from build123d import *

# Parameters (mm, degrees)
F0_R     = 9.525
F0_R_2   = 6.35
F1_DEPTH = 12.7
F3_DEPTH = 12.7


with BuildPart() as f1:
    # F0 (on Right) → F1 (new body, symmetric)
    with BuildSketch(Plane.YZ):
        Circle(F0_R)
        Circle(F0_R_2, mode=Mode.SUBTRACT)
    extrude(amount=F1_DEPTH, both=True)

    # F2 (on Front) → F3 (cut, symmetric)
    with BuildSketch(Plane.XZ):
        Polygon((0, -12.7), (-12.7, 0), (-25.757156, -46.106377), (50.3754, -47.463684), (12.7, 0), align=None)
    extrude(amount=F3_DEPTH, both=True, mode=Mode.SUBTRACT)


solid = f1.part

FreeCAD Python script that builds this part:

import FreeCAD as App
import Part
import Sketcher
from FreeCAD import Vector
Q = App.Units.Quantity


def add_polygon(sketch, points):
    """Adds a closed chain of lines whose ends are joined by coincident constraints."""
    first, n = sketch.GeometryCount, len(points)
    for a, b in zip(points, points[1:] + points[:1]):
        sketch.addGeometry(Part.LineSegment(App.Vector(*a, 0), App.Vector(*b, 0)), False)
    for i in range(n):
        sketch.addConstraint(Sketcher.Constraint("Coincident", first + i, 2, first + (i + 1) % n, 1))

doc = App.newDocument("Part")
body = doc.addObject("PartDesign::Body", "Body")

# Sketch on YZ plane
sketch1 = doc.addObject("Sketcher::SketchObject", "Sketch")
body.addObject(sketch1)
sketch1.AttachmentSupport = (doc.YZ_Plane, [""])
sketch1.MapMode = "FlatFace"
sketch1.addGeometry(Part.Circle(Vector(0, 0, 0), Vector(0, 0, 1), 9.525), False)
sketch1.addGeometry(Part.Circle(Vector(0, 0, 0), Vector(0, 0, 1), 6.35), False)
sketch1.addConstraint(Sketcher.Constraint("Coincident", 0, 3, -1, 1))
sketch1.addConstraint(Sketcher.Constraint("Coincident", 1, 3, -1, 1))
sketch1.addConstraint(Sketcher.Constraint("Diameter", 1, Q("0.5 in")))
sketch1.addConstraint(Sketcher.Constraint("Diameter", 0, Q("0.75 in")))
pad1 = doc.addObject("PartDesign::Pad", "Pad")
body.addObject(pad1)
pad1.Profile = sketch1
pad1.Length = Q("1 in")
pad1.Midplane = True

# Sketch on XZ plane
sketch2 = doc.addObject("Sketcher::SketchObject", "Sketch001")
body.addObject(sketch2)
sketch2.AttachmentSupport = (doc.XZ_Plane, [""])
sketch2.MapMode = "FlatFace"
add_polygon(sketch2, [(0, -12.7), (-12.7, 0), (-25.757156, -46.106377), (50.3754, -47.463684), (12.7, 0)])  # lines 0-4
sketch2.addConstraint(Sketcher.Constraint("Symmetric", 0, 2, 3, 2, -1, 1))
sketch2.addConstraint(Sketcher.Constraint("PointOnObject", 0, 2, -1))
sketch2.addConstraint(Sketcher.Constraint("PointOnObject", 4, 2, -2))
sketch2.addConstraint(Sketcher.Constraint("Perpendicular", 0, 4))
sketch2.addConstraint(Sketcher.Constraint("DistanceX", 0, 2, 3, 2, Q("1 in")))
sketch2.addConstraint(Sketcher.Constraint("DistanceX", -1, 1, 2, 2, Q("50.3754 mm")))
sketch2.addConstraint(Sketcher.Constraint("Distance", 1, Q("47.919592 mm")))
sketch2.addConstraint(Sketcher.Constraint("Distance", 2, Q("76.144654 mm")))
sketch2.addConstraint(Sketcher.Constraint("Distance", 3, Q("60.598986 mm")))
pocket1 = doc.addObject("PartDesign::Pocket", "Pocket")
body.addObject(pocket1)
pocket1.Profile = sketch2
pocket1.Length = Q("1 in")
pocket1.Midplane = True

doc.recompute()
